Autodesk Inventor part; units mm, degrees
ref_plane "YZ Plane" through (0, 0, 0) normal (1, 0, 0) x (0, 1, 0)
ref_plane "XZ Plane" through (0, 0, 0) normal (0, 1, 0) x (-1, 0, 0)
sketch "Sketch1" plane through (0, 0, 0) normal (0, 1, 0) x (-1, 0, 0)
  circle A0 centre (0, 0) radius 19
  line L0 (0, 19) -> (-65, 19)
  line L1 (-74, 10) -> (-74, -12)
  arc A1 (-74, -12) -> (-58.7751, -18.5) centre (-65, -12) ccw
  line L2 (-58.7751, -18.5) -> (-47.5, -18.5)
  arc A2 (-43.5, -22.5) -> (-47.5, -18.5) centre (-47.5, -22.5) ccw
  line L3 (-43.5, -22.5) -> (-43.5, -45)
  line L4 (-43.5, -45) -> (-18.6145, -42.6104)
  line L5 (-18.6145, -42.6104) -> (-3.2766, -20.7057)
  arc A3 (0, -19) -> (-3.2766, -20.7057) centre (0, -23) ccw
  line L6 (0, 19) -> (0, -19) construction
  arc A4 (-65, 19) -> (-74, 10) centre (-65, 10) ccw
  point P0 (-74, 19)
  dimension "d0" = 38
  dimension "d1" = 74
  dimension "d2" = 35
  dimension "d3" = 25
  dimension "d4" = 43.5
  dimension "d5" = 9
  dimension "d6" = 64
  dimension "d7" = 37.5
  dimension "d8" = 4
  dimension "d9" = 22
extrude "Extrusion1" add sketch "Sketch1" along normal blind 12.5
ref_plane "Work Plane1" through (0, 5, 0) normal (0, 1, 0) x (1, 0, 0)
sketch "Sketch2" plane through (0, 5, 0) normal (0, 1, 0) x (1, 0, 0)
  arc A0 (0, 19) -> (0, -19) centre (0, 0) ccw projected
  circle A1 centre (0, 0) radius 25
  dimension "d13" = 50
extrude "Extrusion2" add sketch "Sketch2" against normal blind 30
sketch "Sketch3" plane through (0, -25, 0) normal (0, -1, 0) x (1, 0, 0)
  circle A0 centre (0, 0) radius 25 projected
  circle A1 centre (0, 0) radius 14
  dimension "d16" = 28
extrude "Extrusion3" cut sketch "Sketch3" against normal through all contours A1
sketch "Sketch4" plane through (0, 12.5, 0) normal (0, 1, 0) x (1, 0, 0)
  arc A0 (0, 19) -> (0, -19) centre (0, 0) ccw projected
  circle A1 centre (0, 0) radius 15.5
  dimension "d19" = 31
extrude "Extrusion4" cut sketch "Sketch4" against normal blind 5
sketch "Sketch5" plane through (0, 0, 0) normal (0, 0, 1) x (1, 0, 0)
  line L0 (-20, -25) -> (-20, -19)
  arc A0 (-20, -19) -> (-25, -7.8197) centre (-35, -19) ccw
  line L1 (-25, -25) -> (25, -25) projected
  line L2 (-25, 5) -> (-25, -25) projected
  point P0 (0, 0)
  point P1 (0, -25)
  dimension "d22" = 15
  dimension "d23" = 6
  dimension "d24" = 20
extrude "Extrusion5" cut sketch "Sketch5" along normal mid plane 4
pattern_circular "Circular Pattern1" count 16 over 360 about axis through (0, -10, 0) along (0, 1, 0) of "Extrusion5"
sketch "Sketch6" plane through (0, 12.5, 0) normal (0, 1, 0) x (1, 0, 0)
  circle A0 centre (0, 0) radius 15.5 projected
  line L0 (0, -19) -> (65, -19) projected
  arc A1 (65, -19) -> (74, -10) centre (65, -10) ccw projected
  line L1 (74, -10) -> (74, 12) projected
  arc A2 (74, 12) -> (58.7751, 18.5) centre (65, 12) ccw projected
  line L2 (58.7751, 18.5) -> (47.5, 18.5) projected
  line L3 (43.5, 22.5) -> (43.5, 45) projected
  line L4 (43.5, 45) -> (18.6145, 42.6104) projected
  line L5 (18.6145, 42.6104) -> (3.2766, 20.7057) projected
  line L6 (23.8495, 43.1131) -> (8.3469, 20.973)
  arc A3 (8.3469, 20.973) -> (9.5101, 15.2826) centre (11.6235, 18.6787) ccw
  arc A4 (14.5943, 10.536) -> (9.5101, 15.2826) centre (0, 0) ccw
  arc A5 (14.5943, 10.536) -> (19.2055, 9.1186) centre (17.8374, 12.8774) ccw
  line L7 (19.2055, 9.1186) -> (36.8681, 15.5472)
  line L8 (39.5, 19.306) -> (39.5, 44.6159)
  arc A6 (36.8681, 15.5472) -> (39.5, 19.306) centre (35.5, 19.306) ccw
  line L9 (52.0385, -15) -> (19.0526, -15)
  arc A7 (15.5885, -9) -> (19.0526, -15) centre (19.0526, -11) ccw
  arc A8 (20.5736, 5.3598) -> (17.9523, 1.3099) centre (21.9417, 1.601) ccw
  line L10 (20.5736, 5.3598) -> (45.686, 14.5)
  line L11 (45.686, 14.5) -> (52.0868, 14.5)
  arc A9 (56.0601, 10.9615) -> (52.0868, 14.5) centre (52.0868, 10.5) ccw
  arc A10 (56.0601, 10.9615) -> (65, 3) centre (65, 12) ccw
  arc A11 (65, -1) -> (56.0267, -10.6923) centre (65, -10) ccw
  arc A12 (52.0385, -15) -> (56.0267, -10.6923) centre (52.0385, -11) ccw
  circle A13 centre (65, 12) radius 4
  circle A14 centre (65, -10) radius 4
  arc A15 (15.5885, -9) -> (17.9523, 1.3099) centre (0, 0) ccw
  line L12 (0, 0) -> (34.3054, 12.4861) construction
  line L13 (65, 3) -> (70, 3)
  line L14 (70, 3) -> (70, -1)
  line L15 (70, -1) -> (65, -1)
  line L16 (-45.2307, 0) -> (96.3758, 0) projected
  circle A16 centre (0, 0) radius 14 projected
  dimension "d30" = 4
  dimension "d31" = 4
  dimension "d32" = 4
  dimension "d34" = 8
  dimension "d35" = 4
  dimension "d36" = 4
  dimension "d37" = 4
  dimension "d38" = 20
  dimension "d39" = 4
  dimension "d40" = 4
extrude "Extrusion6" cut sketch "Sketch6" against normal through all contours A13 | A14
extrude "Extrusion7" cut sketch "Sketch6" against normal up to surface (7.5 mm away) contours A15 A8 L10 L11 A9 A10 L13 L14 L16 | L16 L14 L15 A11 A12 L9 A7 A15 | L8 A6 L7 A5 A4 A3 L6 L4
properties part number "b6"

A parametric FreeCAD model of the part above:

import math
import FreeCAD as App
import Part
import Sketcher

V = App.Vector
Q = App.Units.Quantity

doc = App.newDocument("Part")
body = doc.addObject("PartDesign::Body", "Body")

sketch1 = body.newObject("Sketcher::SketchObject", "Sketch")
sketch1.AttachmentSupport = (doc.getObject("XZ_Plane"), [""])
sketch1.MapMode = "FlatFace"
sketch1.addGeometry(Part.ArcOfCircle(Part.Circle(V(0, 0, 0), V(0, 0, 1), 19), math.radians(90), math.radians(270)), False)
sketch1.addGeometry(Part.LineSegment(V(0, 19, 0), V(65, 19, 0)), False)
sketch1.addGeometry(Part.ArcOfCircle(Part.Circle(V(65, 10, 0), V(0, 0, 1), 9), math.radians(0), math.radians(90)), False)
sketch1.addGeometry(Part.LineSegment(V(74, 10, 0), V(74, -12, 0)), False)
sketch1.addGeometry(Part.ArcOfCircle(Part.Circle(V(65, -12, 0), V(0, 0, 1), 9), math.radians(-134), math.radians(0)), False)
sketch1.addGeometry(Part.LineSegment(V(58.8, -18.5, 0), V(47.5, -18.5, 0)), False)
sketch1.addGeometry(Part.ArcOfCircle(Part.Circle(V(47.5, -22.5, 0), V(0, 0, 1), 4), math.radians(90), math.radians(180)), False)
sketch1.addGeometry(Part.LineSegment(V(43.5, -22.5, 0), V(43.5, -45, 0)), False)
sketch1.addGeometry(Part.LineSegment(V(43.5, -45, 0), V(18.6, -42.6, 0)), False)
sketch1.addGeometry(Part.LineSegment(V(18.6, -42.6, 0), V(3.3, -20.7, 0)), False)
sketch1.addGeometry(Part.ArcOfCircle(Part.Circle(V(0, -23, 0), V(0, 0, 1), 4), math.radians(35), math.radians(90)), False)
sketch1.addConstraint(Sketcher.Constraint("Tangent", 0, 1, 1, 1))
sketch1.addConstraint(Sketcher.Constraint("Tangent", 1, 2, 2, 2))
sketch1.addConstraint(Sketcher.Constraint("Tangent", 2, 1, 3, 1))
sketch1.addConstraint(Sketcher.Constraint("Tangent", 3, 2, 4, 2))
sketch1.addConstraint(Sketcher.Constraint("Coincident", 4, 1, 5, 1))
sketch1.addConstraint(Sketcher.Constraint("Tangent", 5, 2, 6, 1))
sketch1.addConstraint(Sketcher.Constraint("Tangent", 6, 2, 7, 1))
sketch1.addConstraint(Sketcher.Constraint("Coincident", 7, 2, 8, 1))
sketch1.addConstraint(Sketcher.Constraint("Coincident", 8, 2, 9, 1))
sketch1.addConstraint(Sketcher.Constraint("Tangent", 9, 2, 10, 1))
sketch1.addConstraint(Sketcher.Constraint("Tangent", 10, 2, 0, 2))
sketch1.addConstraint(Sketcher.Constraint("Horizontal", 1))
sketch1.addConstraint(Sketcher.Constraint("Vertical", 3))
sketch1.addConstraint(Sketcher.Constraint("Horizontal", 5))
sketch1.addConstraint(Sketcher.Constraint("Vertical", 7))
sketch1.addConstraint(Sketcher.Constraint("Coincident", 0, 3, -1, 1))
sketch1.addConstraint(Sketcher.Constraint("Equal", 2, 4))
sketch1.addConstraint(Sketcher.Constraint("Equal", 6, 10))
sketch1.addConstraint(Sketcher.Constraint("PointOnObject", 10, 3, -2))
sketch1.addConstraint(Sketcher.Constraint("Radius", 0, 19.0))
sketch1.addConstraint(Sketcher.Constraint("Radius", 2, 9.0))
sketch1.addConstraint(Sketcher.Constraint("Radius", 6, 4.0))
sketch1.addConstraint(Sketcher.Constraint("DistanceY", 3, 2, 3, 1, 22.0))
sketch1.addConstraint(Sketcher.Constraint("Distance", 8, 25.0))
sketch1.addConstraint(Sketcher.Constraint("DistanceX", -1, 1, 2, 1, 74.0))
sketch1.addConstraint(Sketcher.Constraint("DistanceX", -1, 1, 6, 2, 43.5))
sketch1.addConstraint(Sketcher.Constraint("Angle", 9, Q("125 deg")))
sketch1.addConstraint(Sketcher.Constraint("DistanceY", 7, 2, 7, 1, 22.5))
sketch1.addConstraint(Sketcher.Constraint("DistanceY", 7, 2, -1, 1, 45.0))
pad1 = body.newObject("PartDesign::Pad", "Pad")
pad1.Profile = sketch1
pad1.Length = 12.5
pad1.Reversed = True

sketch2 = body.newObject("Sketcher::SketchObject", "Sketch001")
sketch2.AttachmentSupport = (doc.getObject("XZ_Plane"), [""])
sketch2.MapMode = "FlatFace"
sketch2.AttachmentOffset = App.Placement(V(0, 0, -5), App.Rotation())
sketch2.addGeometry(Part.Circle(V(0, 0, 0), V(0, 0, 1), 25), False)
sketch2.addConstraint(Sketcher.Constraint("Coincident", 0, 3, -1, 1))
sketch2.addConstraint(Sketcher.Constraint("Diameter", 0, 50.0))
pad2 = body.newObject("PartDesign::Pad", "Pad001")
pad2.Profile = sketch2
pad2.Length = 30

sketch3 = body.newObject("Sketcher::SketchObject", "Sketch002")
sketch3.AttachmentSupport = (doc.getObject("XZ_Plane"), [""])
sketch3.MapMode = "FlatFace"
sketch3.AttachmentOffset = App.Placement(V(0, 0, 25), App.Rotation())
sketch3.addGeometry(Part.Circle(V(0, 0, 0), V(0, 0, 1), 14), False)
sketch3.addConstraint(Sketcher.Constraint("Coincident", 0, 3, -1, 1))
sketch3.addConstraint(Sketcher.Constraint("Diameter", 0, 28.0))
pocket1 = body.newObject("PartDesign::Pocket", "Pocket")
pocket1.Profile = sketch3
pocket1.Type = "ThroughAll"

sketch4 = body.newObject("Sketcher::SketchObject", "Sketch003")
sketch4.AttachmentSupport = (doc.getObject("XZ_Plane"), [""])
sketch4.MapMode = "FlatFace"
sketch4.AttachmentOffset = App.Placement(V(0, 0, -12.5), App.Rotation())
sketch4.addGeometry(Part.Circle(V(0, 0, 0), V(0, 0, 1), 16), False)
sketch4.addConstraint(Sketcher.Constraint("Coincident", 0, 3, -1, 1))
sketch4.addConstraint(Sketcher.Constraint("Diameter", 0, 31.0))
pocket2 = body.newObject("PartDesign::Pocket", "Pocket001")
pocket2.Profile = sketch4
pocket2.Length = 5
pocket2.Reversed = True

sketch5 = body.newObject("Sketcher::SketchObject", "Sketch004")
sketch5.AttachmentSupport = (doc.getObject("XY_Plane"), [""])
sketch5.MapMode = "FlatFace"
sketch5.addGeometry(Part.LineSegment(V(-25, -25, 0), V(-20, -25, 0)), False)
sketch5.addGeometry(Part.LineSegment(V(-20, -25, 0), V(-20, -19, 0)), False)
sketch5.addGeometry(Part.ArcOfCircle(Part.Circle(V(-35, -19, 0), V(0, 0, 1), 15), math.radians(0), math.radians(48)), False)
sketch5.addGeometry(Part.LineSegment(V(-25, -8, 0), V(-25, -25, 0)), False)
sketch5.addConstraint(Sketcher.Constraint("Coincident", 0, 2, 1, 1))
sketch5.addConstraint(Sketcher.Constraint("Tangent", 1, 2, 2, 1))
sketch5.addConstraint(Sketcher.Constraint("Coincident", 2, 2, 3, 1))
sketch5.addConstraint(Sketcher.Constraint("Coincident", 3, 2, 0, 1))
sketch5.addConstraint(Sketcher.Constraint("Horizontal", 0))
sketch5.addConstraint(Sketcher.Constraint("Vertical", 1))
sketch5.addConstraint(Sketcher.Constraint("Vertical", 3))
sketch5.addConstraint(Sketcher.Constraint("Radius", 2, 15.0))
sketch5.addConstraint(Sketcher.Constraint("DistanceY", 1, 1, 1, 2, 6.0))
sketch5.addConstraint(Sketcher.Constraint("DistanceX", 0, 2, -1, 1, 20.0))
sketch5.addConstraint(Sketcher.Constraint("DistanceX", 0, 1, 0, 2, 5.0))
sketch5.addConstraint(Sketcher.Constraint("DistanceY", 2, 3, -1, 1, 19.0))
pocket3 = body.newObject("PartDesign::Pocket", "Pocket002")
pocket3.Profile = sketch5
pocket3.Length = 4
pocket3.Midplane = True
doc.recompute()

polarpattern = body.newObject("PartDesign::PolarPattern", "PolarPattern")
polarpattern.Originals = [pocket3]
polarpattern.Axis = (doc.getObject("Y_Axis"), [""])
polarpattern.Angle = 360
polarpattern.Occurrences = 16
body.Tip = polarpattern

sketch6 = body.newObject("Sketcher::SketchObject", "Sketch005")
sketch6.AttachmentSupport = (doc.getObject("XZ_Plane"), [""])
sketch6.MapMode = "FlatFace"
sketch6.AttachmentOffset = App.Placement(V(0, 0, -12.5), App.Rotation())
sketch6.addGeometry(Part.Circle(V(65, -12, 0), V(0, 0, 1), 4), False)
sketch6.addGeometry(Part.Circle(V(65, 10, 0), V(0, 0, 1), 4), False)
sketch6.addConstraint(Sketcher.Constraint("Equal", 0, 1))
sketch6.addConstraint(Sketcher.Constraint("Vertical", 0, 3, 1, 3))
sketch6.addConstraint(Sketcher.Constraint("Diameter", 0, 8.0))
sketch6.addConstraint(Sketcher.Constraint("DistanceX", -1, 1, 0, 3, 65.0))
sketch6.addConstraint(Sketcher.Constraint("DistanceY", 0, 3, -1, 1, 12.0))
sketch6.addConstraint(Sketcher.Constraint("DistanceY", -1, 1, 1, 3, 10.0))
pocket4 = body.newObject("PartDesign::Pocket", "Pocket003")
pocket4.Profile = sketch6
pocket4.Type = "ThroughAll"
pocket4.Reversed = True

sketch7 = body.newObject("Sketcher::SketchObject", "Sketch006")
sketch7.AttachmentSupport = (doc.getObject("XZ_Plane"), [""])
sketch7.MapMode = "FlatFace"
sketch7.AttachmentOffset = App.Placement(V(0, 0, -12.5), App.Rotation())
sketch7.addGeometry(Part.ArcOfCircle(Part.Circle(V(0, 0, 0), V(0, 0, 1), 18), math.radians(-4), math.radians(30)), False)
sketch7.addGeometry(Part.ArcOfCircle(Part.Circle(V(19.1, 11, 0), V(0, 0, 1), 4), math.radians(90), math.radians(210)), False)
sketch7.addGeometry(Part.LineSegment(V(19.1, 15, 0), V(52, 15, 0)), False)
sketch7.addGeometry(Part.ArcOfCircle(Part.Circle(V(52, 11, 0), V(0, 0, 1), 4), math.radians(-4), math.radians(90)), False)
sketch7.addGeometry(Part.ArcOfCircle(Part.Circle(V(65, 10, 0), V(0, 0, 1), 9), math.radians(176), math.radians(270)), False)
sketch7.addGeometry(Part.LineSegment(V(65, 1, 0), V(70, 1, 0)), False)
sketch7.addGeometry(Part.LineSegment(V(70, 1, 0), V(70, -3, 0)), False)
sketch7.addGeometry(Part.LineSegment(V(70, -3, 0), V(65, -3, 0)), False)
sketch7.addGeometry(Part.ArcOfCircle(Part.Circle(V(65, -12, 0), V(0, 0, 1), 9), math.radians(90), math.radians(173)), False)
sketch7.addGeometry(Part.ArcOfCircle(Part.Circle(V(52.1, -10.5, 0), V(0, 0, 1), 4), math.radians(-90), math.radians(-7)), False)
sketch7.addGeometry(Part.LineSegment(V(52.1, -14.5, 0), V(45.7, -14.5, 0)), False)
sketch7.addGeometry(Part.LineSegment(V(45.7, -14.5, 0), V(20.6, -5.4, 0)), False)
sketch7.addGeometry(Part.ArcOfCircle(Part.Circle(V(21.9, -1.6, 0), V(0, 0, 1), 4), math.radians(176), math.radians(250)), False)
sketch7.addGeometry(Part.LineSegment(V(39.5, -19.3, 0), V(39.5, -44.6, 0)), False)
sketch7.addGeometry(Part.LineSegment(V(39.5, -44.6, 0), V(23.8, -43.1, 0)), False)
sketch7.addGeometry(Part.LineSegment(V(23.8, -43.1, 0), V(8.3, -21, 0)), False)
sketch7.addGeometry(Part.ArcOfCircle(Part.Circle(V(11.6, -18.7, 0), V(0, 0, 1), 4), math.radians(122), math.radians(215)), False)
sketch7.addGeometry(Part.ArcOfCircle(Part.Circle(V(0, 0, 0), V(0, 0, 1), 18), math.radians(-58), math.radians(-36)), False)
sketch7.addGeometry(Part.ArcOfCircle(Part.Circle(V(17.8, -12.9, 0), V(0, 0, 1), 4), math.radians(70), math.radians(144)), False)
sketch7.addGeometry(Part.LineSegment(V(19.2, -9.1, 0), V(36.9, -15.5, 0)), False)
sketch7.addGeometry(Part.ArcOfCircle(Part.Circle(V(35.5, -19.3, 0), V(0, 0, 1), 4), math.radians(0), math.radians(70)), False)
sketch7.addConstraint(Sketcher.Constraint("Tangent", 0, 2, 1, 2))
sketch7.addConstraint(Sketcher.Constraint("Tangent", 1, 1, 2, 1))
sketch7.addConstraint(Sketcher.Constraint("Tangent", 2, 2, 3, 2))
sketch7.addConstraint(Sketcher.Constraint("Tangent", 3, 1, 4, 1))
sketch7.addConstraint(Sketcher.Constraint("Tangent", 4, 2, 5, 1))
sketch7.addConstraint(Sketcher.Constraint("Coincident", 5, 2, 6, 1))
sketch7.addConstraint(Sketcher.Constraint("Coincident", 6, 2, 7, 1))
sketch7.addConstraint(Sketcher.Constraint("Tangent", 7, 2, 8, 1))
sketch7.addConstraint(Sketcher.Constraint("Tangent", 8, 2, 9, 2))
sketch7.addConstraint(Sketcher.Constraint("Tangent", 9, 1, 10, 1))
sketch7.addConstraint(Sketcher.Constraint("Coincident", 10, 2, 11, 1))
sketch7.addConstraint(Sketcher.Constraint("Tangent", 11, 2, 12, 2))
sketch7.addConstraint(Sketcher.Constraint("Tangent", 12, 1, 0, 1))
sketch7.addConstraint(Sketcher.Constraint("Coincident", 13, 2, 14, 1))
sketch7.addConstraint(Sketcher.Constraint("Coincident", 14, 2, 15, 1))
sketch7.addConstraint(Sketcher.Constraint("Tangent", 15, 2, 16, 2))
sketch7.addConstraint(Sketcher.Constraint("Tangent", 16, 1, 17, 1))
sketch7.addConstraint(Sketcher.Constraint("Tangent", 17, 2, 18, 2))
sketch7.addConstraint(Sketcher.Constraint("Tangent", 18, 1, 19, 1))
sketch7.addConstraint(Sketcher.Constraint("Tangent", 19, 2, 20, 2))
sketch7.addConstraint(Sketcher.Constraint("Tangent", 20, 1, 13, 1))
sketch7.addConstraint(Sketcher.Constraint("Horizontal", 2))
sketch7.addConstraint(Sketcher.Constraint("Horizontal", 5))
sketch7.addConstraint(Sketcher.Constraint("Vertical", 6))
sketch7.addConstraint(Sketcher.Constraint("Horizontal", 7))
sketch7.addConstraint(Sketcher.Constraint("Horizontal", 10))
sketch7.addConstraint(Sketcher.Constraint("Vertical", 13))
sketch7.addConstraint(Sketcher.Constraint("Coincident", 0, 3, -1, 1))
sketch7.addConstraint(Sketcher.Constraint("Coincident", 17, 3, -1, 1))
sketch7.addConstraint(Sketcher.Constraint("Equal", 1, 3))
sketch7.addConstraint(Sketcher.Constraint("Equal", 4, 8))
sketch7.addConstraint(Sketcher.Constraint("Equal", 3, 9))
sketch7.addConstraint(Sketcher.Constraint("Equal", 9, 12))
sketch7.addConstraint(Sketcher.Constraint("Equal", 12, 16))
sketch7.addConstraint(Sketcher.Constraint("Equal", 0, 17))
sketch7.addConstraint(Sketcher.Constraint("Equal", 16, 18))
sketch7.addConstraint(Sketcher.Constraint("Equal", 18, 20))
sketch7.addConstraint(Sketcher.Constraint("Parallel", 11, 19))
sketch7.addConstraint(Sketcher.Constraint("Vertical", 4, 3, 8, 3))
sketch7.addConstraint(Sketcher.Constraint("Radius", 1, 4.0))
sketch7.addConstraint(Sketcher.Constraint("DistanceY", 6, 2, 6, 1, 4.0))
sketch7.addConstraint(Sketcher.Constraint("Angle", 19, Q("-19.9998 deg")))
sketch7.addConstraint(Sketcher.Constraint("Radius", 0, 18.0))
sketch7.addConstraint(Sketcher.Constraint("Radius", 4, 9.0))
sketch7.addConstraint(Sketcher.Constraint("DistanceX", 5, 1, 5, 2, 5.0))
sketch7.addConstraint(Sketcher.Constraint("Angle", 15, Q("125 deg")))
sketch7.addConstraint(Sketcher.Constraint("DistanceY", -1, 1, 1, 3, 11.0))
sketch7.addConstraint(Sketcher.Constraint("DistanceX", -1, 1, 4, 3, 65.0))
sketch7.addConstraint(Sketcher.Constraint("DistanceY", -1, 1, 4, 3, 10.0))
sketch7.addConstraint(Sketcher.Constraint("DistanceY", 13, 2, 13, 1, 25.31))
sketch7.addConstraint(Sketcher.Constraint("DistanceY", 9, 3, -1, 1, 10.5))
sketch7.addConstraint(Sketcher.Constraint("DistanceX", -1, 1, 20, 3, 35.5))
sketch7.addConstraint(Sketcher.Constraint("DistanceY", 12, 1, -1, 1, 1.31))
sketch7.addConstraint(Sketcher.Constraint("DistanceX", -1, 1, 16, 1, 9.51))
sketch7.addConstraint(Sketcher.Constraint("Distance", 15, 27.028))
sketch7.addConstraint(Sketcher.Constraint("DistanceY", 20, 3, -1, 1, 19.306))
pocket5 = body.newObject("PartDesign::Pocket", "Pocket004")
pocket5.Profile = sketch7
pocket5.Length = 7.5
pocket5.Reversed = True

doc.recompute()
